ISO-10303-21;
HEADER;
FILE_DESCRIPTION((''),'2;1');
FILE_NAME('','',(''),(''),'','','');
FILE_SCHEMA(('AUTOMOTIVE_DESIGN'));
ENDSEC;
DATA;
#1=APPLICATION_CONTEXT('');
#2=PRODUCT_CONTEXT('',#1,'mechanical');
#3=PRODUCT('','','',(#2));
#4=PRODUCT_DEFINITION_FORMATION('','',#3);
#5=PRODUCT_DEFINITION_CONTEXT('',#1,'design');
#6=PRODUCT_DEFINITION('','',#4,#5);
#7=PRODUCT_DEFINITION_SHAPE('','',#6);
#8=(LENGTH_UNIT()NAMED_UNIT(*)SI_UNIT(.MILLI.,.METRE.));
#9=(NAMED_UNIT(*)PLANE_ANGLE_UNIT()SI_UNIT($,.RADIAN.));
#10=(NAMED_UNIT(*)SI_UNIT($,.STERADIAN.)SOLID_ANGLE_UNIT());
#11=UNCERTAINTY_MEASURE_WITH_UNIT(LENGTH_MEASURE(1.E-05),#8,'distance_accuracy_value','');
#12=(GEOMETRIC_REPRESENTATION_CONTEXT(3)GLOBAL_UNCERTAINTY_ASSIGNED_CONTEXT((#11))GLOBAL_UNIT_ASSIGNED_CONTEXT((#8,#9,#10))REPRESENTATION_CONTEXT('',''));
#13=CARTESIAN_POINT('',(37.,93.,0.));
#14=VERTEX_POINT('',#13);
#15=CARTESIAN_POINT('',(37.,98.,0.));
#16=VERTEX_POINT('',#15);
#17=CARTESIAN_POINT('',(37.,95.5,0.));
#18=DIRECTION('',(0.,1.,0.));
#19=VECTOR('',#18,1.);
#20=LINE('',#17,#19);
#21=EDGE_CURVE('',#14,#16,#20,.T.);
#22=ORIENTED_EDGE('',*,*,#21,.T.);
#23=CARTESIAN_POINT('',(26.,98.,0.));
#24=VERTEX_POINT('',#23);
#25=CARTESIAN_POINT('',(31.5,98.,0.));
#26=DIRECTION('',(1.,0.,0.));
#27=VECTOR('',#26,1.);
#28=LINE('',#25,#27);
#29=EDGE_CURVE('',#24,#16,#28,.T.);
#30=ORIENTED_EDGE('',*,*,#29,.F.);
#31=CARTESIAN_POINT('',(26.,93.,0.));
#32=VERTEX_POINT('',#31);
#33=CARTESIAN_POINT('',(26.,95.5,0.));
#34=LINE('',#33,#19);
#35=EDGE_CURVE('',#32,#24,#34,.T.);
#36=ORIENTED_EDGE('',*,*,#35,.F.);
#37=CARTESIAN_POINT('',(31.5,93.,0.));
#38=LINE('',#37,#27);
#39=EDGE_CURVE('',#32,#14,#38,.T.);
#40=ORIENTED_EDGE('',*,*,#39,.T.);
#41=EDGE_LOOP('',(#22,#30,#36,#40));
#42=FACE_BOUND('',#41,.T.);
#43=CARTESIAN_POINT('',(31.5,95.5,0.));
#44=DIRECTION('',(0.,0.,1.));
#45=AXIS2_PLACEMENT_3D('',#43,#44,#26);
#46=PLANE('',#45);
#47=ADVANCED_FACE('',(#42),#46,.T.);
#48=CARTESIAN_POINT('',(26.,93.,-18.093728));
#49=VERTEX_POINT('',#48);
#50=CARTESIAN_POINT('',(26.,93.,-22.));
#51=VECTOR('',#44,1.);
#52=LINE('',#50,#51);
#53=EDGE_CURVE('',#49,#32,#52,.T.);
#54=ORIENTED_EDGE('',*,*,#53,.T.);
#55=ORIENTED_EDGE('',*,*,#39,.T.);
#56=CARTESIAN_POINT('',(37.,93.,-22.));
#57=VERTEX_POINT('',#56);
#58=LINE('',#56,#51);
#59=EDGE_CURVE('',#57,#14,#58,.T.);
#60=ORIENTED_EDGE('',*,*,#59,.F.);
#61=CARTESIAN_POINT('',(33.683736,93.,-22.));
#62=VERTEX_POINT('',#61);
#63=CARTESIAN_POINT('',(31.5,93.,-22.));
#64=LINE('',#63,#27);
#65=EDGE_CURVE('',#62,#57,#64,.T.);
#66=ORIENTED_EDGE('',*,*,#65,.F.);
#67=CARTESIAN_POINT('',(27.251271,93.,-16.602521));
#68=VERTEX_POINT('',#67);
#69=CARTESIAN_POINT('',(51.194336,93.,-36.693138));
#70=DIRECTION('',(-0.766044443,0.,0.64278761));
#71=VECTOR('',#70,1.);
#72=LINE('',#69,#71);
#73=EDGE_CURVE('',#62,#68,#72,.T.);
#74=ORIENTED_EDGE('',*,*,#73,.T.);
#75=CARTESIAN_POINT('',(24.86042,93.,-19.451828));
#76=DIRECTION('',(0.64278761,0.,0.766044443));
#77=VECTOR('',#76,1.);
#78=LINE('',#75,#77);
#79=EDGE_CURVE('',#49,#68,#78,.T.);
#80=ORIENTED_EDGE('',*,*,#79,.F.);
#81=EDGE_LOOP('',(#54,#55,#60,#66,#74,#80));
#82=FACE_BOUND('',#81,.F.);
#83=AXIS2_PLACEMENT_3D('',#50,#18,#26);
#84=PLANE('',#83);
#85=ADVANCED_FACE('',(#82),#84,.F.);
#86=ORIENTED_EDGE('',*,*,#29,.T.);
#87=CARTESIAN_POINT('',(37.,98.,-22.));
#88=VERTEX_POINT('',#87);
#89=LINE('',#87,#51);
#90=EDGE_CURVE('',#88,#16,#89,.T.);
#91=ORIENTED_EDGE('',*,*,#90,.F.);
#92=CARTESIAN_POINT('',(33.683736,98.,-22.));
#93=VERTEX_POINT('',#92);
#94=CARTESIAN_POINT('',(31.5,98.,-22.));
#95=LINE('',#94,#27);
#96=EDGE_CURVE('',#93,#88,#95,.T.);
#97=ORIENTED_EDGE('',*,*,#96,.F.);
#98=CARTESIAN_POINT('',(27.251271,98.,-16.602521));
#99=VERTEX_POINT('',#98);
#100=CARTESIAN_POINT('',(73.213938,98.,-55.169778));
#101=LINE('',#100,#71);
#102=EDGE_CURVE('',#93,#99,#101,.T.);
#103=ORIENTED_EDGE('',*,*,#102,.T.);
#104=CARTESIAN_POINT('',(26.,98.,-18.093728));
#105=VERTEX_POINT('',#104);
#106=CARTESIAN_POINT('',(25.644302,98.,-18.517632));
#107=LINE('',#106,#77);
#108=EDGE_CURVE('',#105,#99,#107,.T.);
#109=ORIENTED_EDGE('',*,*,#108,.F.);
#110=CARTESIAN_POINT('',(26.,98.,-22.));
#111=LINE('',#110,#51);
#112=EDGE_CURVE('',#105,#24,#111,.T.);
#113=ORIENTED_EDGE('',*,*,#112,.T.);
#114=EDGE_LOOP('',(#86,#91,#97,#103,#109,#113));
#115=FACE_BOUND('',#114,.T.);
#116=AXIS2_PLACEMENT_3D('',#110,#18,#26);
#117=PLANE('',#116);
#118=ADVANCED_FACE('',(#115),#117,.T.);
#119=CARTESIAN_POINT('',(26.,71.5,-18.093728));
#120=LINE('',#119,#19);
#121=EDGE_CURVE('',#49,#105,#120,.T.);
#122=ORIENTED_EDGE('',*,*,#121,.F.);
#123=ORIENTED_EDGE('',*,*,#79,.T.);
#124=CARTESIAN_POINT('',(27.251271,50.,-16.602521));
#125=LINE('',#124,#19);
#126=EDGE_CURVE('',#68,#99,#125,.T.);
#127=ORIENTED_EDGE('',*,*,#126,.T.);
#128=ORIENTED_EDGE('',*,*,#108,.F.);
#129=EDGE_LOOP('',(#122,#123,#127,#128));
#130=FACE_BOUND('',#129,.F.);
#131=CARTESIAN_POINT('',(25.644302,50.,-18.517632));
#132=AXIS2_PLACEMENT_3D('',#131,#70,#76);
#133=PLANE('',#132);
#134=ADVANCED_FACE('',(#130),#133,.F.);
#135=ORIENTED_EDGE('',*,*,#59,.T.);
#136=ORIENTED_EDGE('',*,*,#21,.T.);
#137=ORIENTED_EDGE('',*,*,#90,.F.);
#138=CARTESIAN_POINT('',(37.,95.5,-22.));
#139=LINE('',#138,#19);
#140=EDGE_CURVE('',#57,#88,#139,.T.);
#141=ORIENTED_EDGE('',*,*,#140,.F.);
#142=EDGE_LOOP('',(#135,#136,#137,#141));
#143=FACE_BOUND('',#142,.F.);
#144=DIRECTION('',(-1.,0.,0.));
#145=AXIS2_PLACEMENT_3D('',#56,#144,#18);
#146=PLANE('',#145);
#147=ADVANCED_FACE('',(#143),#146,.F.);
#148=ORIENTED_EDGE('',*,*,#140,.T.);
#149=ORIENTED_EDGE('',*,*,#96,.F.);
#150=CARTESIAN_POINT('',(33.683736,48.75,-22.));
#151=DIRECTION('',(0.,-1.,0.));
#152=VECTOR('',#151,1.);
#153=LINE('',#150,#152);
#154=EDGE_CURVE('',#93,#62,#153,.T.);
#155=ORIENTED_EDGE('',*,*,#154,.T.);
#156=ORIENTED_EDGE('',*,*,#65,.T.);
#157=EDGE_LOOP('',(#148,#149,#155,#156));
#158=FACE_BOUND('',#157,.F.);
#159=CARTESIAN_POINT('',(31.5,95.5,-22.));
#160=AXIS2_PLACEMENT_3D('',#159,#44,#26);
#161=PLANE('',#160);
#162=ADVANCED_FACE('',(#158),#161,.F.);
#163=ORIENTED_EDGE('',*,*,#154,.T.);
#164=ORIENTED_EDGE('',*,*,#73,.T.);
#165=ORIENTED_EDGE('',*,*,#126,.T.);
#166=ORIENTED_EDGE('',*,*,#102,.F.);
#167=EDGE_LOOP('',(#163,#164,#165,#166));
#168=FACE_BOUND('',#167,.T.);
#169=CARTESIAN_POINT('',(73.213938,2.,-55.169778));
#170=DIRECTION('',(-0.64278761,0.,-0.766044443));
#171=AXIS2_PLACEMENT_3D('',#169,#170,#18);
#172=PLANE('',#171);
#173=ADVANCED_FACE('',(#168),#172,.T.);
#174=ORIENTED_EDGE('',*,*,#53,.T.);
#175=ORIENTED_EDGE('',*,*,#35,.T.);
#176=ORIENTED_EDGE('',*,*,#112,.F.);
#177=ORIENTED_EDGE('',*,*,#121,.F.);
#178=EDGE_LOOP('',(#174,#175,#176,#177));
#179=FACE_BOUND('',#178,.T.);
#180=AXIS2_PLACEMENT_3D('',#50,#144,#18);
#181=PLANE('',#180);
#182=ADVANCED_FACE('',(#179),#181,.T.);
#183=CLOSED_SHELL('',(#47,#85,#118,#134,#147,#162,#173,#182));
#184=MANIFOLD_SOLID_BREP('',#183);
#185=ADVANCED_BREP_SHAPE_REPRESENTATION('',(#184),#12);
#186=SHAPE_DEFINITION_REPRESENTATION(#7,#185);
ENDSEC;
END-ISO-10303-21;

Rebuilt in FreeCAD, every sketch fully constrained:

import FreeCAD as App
import Part
import Sketcher

V = App.Vector

doc = App.newDocument("Part")
params = doc.addObject("Spreadsheet::Sheet", "Params")
for row, (alias, value) in enumerate([
    ("sketch1_width", "5 mm"),
    ("sketch1_height", "96 mm"),
    ("pad1_length", "60 mm"),
    ("sketch2_width", "11 mm"),
    ("sketch2_height", "5 mm"),
    ("pad2_length", "22 mm"),
], start=1):
    params.set(f"A{row}", alias)
    params.set(f"B{row}", "=" + value)
    params.setAlias(f"B{row}", alias)

body = doc.addObject("PartDesign::Body", "Body")

# Sketch on XY plane
sketch1 = doc.addObject("Sketcher::SketchObject", "Sketch")
body.addObject(sketch1)
sketch1.AttachmentSupport = (doc.XY_Plane, [""])
sketch1.MapMode = "FlatFace"
sketch1.addGeometry([
    Part.LineSegment(V(0, 96, 0), V(0, 0, 0)),
    Part.LineSegment(V(0, 0, 0), V(5, 0, 0)),
    Part.LineSegment(V(5, 0, 0), V(5, 96, 0)),
    Part.LineSegment(V(5, 96, 0), V(0, 96, 0)),
], False)
sketch1.addConstraint([
    Sketcher.Constraint("Coincident", 0, 2, 1, 1),
    Sketcher.Constraint("Coincident", 1, 2, 2, 1),
    Sketcher.Constraint("Coincident", 2, 2, 3, 1),
    Sketcher.Constraint("Coincident", 3, 2, 0, 1),
    Sketcher.Constraint("Vertical", 0),
    Sketcher.Constraint("Horizontal", 1),
    Sketcher.Constraint("Vertical", 2),
    Sketcher.Constraint("Horizontal", 3),
    Sketcher.Constraint("Coincident", 0, 2, -1, 1),
    Sketcher.Constraint("DistanceX", 1, 1, 1, 2, 5.0),
    Sketcher.Constraint("DistanceY", 0, 2, 0, 1, 96.0),
])
sketch1.setExpression("Constraints[9]", "Params.sketch1_width")
sketch1.setExpression("Constraints[10]", "Params.sketch1_height")
pad1 = doc.addObject("PartDesign::Pad", "Pad")
body.addObject(pad1)
pad1.Profile = sketch1
pad1.setExpression("Length", "Params.pad1_length")
body2 = doc.addObject("PartDesign::Body", "Body001")
doc.recompute()

body.Placement = App.Placement(V(70, 2, -59), App.Rotation(V(0, 1, 0), 310))
boolean = doc.addObject("PartDesign::Boolean", "Boolean")
body2.addObject(boolean)
boolean.Type = "Fuse"
boolean.addObjects([body])
body3 = doc.addObject("PartDesign::Body", "Body002")

# Sketch on XY plane
sketch2 = doc.addObject("Sketcher::SketchObject", "Sketch001")
body3.addObject(sketch2)
sketch2.AttachmentSupport = (doc.getObject("XY_Plane002"), [""])
sketch2.MapMode = "FlatFace"
sketch2.AttachmentOffset = App.Placement(V(0, 0, -22), App.Rotation())
sketch2.addGeometry([
    Part.LineSegment(V(26, 98, 0), V(26, 93, 0)),
    Part.LineSegment(V(26, 93, 0), V(37, 93, 0)),
    Part.LineSegment(V(37, 93, 0), V(37, 98, 0)),
    Part.LineSegment(V(37, 98, 0), V(26, 98, 0)),
], False)
sketch2.addConstraint([
    Sketcher.Constraint("Coincident", 0, 2, 1, 1),
    Sketcher.Constraint("Coincident", 1, 2, 2, 1),
    Sketcher.Constraint("Coincident", 2, 2, 3, 1),
    Sketcher.Constraint("Coincident", 3, 2, 0, 1),
    Sketcher.Constraint("Vertical", 0),
    Sketcher.Constraint("Horizontal", 1),
    Sketcher.Constraint("Vertical", 2),
    Sketcher.Constraint("Horizontal", 3),
    Sketcher.Constraint("DistanceX", 1, 1, 1, 2, 11.0),
    Sketcher.Constraint("DistanceY", 0, 2, 0, 1, 5.0),
    Sketcher.Constraint("DistanceX", -1, 1, 0, 2, 26.0),
    Sketcher.Constraint("DistanceY", -1, 1, 0, 2, 93.0),
])
sketch2.setExpression("Constraints[8]", "Params.sketch2_width")
sketch2.setExpression("Constraints[9]", "Params.sketch2_height")
pad2 = doc.addObject("PartDesign::Pad", "Pad001")
body3.addObject(pad2)
pad2.Profile = sketch2
pad2.setExpression("Length", "Params.pad2_length")
doc.recompute()

boolean2 = doc.addObject("PartDesign::Boolean", "Boolean001")
body3.addObject(boolean2)
boolean2.Type = "Cut"
boolean2.addObjects([body2])

doc.recompute()
